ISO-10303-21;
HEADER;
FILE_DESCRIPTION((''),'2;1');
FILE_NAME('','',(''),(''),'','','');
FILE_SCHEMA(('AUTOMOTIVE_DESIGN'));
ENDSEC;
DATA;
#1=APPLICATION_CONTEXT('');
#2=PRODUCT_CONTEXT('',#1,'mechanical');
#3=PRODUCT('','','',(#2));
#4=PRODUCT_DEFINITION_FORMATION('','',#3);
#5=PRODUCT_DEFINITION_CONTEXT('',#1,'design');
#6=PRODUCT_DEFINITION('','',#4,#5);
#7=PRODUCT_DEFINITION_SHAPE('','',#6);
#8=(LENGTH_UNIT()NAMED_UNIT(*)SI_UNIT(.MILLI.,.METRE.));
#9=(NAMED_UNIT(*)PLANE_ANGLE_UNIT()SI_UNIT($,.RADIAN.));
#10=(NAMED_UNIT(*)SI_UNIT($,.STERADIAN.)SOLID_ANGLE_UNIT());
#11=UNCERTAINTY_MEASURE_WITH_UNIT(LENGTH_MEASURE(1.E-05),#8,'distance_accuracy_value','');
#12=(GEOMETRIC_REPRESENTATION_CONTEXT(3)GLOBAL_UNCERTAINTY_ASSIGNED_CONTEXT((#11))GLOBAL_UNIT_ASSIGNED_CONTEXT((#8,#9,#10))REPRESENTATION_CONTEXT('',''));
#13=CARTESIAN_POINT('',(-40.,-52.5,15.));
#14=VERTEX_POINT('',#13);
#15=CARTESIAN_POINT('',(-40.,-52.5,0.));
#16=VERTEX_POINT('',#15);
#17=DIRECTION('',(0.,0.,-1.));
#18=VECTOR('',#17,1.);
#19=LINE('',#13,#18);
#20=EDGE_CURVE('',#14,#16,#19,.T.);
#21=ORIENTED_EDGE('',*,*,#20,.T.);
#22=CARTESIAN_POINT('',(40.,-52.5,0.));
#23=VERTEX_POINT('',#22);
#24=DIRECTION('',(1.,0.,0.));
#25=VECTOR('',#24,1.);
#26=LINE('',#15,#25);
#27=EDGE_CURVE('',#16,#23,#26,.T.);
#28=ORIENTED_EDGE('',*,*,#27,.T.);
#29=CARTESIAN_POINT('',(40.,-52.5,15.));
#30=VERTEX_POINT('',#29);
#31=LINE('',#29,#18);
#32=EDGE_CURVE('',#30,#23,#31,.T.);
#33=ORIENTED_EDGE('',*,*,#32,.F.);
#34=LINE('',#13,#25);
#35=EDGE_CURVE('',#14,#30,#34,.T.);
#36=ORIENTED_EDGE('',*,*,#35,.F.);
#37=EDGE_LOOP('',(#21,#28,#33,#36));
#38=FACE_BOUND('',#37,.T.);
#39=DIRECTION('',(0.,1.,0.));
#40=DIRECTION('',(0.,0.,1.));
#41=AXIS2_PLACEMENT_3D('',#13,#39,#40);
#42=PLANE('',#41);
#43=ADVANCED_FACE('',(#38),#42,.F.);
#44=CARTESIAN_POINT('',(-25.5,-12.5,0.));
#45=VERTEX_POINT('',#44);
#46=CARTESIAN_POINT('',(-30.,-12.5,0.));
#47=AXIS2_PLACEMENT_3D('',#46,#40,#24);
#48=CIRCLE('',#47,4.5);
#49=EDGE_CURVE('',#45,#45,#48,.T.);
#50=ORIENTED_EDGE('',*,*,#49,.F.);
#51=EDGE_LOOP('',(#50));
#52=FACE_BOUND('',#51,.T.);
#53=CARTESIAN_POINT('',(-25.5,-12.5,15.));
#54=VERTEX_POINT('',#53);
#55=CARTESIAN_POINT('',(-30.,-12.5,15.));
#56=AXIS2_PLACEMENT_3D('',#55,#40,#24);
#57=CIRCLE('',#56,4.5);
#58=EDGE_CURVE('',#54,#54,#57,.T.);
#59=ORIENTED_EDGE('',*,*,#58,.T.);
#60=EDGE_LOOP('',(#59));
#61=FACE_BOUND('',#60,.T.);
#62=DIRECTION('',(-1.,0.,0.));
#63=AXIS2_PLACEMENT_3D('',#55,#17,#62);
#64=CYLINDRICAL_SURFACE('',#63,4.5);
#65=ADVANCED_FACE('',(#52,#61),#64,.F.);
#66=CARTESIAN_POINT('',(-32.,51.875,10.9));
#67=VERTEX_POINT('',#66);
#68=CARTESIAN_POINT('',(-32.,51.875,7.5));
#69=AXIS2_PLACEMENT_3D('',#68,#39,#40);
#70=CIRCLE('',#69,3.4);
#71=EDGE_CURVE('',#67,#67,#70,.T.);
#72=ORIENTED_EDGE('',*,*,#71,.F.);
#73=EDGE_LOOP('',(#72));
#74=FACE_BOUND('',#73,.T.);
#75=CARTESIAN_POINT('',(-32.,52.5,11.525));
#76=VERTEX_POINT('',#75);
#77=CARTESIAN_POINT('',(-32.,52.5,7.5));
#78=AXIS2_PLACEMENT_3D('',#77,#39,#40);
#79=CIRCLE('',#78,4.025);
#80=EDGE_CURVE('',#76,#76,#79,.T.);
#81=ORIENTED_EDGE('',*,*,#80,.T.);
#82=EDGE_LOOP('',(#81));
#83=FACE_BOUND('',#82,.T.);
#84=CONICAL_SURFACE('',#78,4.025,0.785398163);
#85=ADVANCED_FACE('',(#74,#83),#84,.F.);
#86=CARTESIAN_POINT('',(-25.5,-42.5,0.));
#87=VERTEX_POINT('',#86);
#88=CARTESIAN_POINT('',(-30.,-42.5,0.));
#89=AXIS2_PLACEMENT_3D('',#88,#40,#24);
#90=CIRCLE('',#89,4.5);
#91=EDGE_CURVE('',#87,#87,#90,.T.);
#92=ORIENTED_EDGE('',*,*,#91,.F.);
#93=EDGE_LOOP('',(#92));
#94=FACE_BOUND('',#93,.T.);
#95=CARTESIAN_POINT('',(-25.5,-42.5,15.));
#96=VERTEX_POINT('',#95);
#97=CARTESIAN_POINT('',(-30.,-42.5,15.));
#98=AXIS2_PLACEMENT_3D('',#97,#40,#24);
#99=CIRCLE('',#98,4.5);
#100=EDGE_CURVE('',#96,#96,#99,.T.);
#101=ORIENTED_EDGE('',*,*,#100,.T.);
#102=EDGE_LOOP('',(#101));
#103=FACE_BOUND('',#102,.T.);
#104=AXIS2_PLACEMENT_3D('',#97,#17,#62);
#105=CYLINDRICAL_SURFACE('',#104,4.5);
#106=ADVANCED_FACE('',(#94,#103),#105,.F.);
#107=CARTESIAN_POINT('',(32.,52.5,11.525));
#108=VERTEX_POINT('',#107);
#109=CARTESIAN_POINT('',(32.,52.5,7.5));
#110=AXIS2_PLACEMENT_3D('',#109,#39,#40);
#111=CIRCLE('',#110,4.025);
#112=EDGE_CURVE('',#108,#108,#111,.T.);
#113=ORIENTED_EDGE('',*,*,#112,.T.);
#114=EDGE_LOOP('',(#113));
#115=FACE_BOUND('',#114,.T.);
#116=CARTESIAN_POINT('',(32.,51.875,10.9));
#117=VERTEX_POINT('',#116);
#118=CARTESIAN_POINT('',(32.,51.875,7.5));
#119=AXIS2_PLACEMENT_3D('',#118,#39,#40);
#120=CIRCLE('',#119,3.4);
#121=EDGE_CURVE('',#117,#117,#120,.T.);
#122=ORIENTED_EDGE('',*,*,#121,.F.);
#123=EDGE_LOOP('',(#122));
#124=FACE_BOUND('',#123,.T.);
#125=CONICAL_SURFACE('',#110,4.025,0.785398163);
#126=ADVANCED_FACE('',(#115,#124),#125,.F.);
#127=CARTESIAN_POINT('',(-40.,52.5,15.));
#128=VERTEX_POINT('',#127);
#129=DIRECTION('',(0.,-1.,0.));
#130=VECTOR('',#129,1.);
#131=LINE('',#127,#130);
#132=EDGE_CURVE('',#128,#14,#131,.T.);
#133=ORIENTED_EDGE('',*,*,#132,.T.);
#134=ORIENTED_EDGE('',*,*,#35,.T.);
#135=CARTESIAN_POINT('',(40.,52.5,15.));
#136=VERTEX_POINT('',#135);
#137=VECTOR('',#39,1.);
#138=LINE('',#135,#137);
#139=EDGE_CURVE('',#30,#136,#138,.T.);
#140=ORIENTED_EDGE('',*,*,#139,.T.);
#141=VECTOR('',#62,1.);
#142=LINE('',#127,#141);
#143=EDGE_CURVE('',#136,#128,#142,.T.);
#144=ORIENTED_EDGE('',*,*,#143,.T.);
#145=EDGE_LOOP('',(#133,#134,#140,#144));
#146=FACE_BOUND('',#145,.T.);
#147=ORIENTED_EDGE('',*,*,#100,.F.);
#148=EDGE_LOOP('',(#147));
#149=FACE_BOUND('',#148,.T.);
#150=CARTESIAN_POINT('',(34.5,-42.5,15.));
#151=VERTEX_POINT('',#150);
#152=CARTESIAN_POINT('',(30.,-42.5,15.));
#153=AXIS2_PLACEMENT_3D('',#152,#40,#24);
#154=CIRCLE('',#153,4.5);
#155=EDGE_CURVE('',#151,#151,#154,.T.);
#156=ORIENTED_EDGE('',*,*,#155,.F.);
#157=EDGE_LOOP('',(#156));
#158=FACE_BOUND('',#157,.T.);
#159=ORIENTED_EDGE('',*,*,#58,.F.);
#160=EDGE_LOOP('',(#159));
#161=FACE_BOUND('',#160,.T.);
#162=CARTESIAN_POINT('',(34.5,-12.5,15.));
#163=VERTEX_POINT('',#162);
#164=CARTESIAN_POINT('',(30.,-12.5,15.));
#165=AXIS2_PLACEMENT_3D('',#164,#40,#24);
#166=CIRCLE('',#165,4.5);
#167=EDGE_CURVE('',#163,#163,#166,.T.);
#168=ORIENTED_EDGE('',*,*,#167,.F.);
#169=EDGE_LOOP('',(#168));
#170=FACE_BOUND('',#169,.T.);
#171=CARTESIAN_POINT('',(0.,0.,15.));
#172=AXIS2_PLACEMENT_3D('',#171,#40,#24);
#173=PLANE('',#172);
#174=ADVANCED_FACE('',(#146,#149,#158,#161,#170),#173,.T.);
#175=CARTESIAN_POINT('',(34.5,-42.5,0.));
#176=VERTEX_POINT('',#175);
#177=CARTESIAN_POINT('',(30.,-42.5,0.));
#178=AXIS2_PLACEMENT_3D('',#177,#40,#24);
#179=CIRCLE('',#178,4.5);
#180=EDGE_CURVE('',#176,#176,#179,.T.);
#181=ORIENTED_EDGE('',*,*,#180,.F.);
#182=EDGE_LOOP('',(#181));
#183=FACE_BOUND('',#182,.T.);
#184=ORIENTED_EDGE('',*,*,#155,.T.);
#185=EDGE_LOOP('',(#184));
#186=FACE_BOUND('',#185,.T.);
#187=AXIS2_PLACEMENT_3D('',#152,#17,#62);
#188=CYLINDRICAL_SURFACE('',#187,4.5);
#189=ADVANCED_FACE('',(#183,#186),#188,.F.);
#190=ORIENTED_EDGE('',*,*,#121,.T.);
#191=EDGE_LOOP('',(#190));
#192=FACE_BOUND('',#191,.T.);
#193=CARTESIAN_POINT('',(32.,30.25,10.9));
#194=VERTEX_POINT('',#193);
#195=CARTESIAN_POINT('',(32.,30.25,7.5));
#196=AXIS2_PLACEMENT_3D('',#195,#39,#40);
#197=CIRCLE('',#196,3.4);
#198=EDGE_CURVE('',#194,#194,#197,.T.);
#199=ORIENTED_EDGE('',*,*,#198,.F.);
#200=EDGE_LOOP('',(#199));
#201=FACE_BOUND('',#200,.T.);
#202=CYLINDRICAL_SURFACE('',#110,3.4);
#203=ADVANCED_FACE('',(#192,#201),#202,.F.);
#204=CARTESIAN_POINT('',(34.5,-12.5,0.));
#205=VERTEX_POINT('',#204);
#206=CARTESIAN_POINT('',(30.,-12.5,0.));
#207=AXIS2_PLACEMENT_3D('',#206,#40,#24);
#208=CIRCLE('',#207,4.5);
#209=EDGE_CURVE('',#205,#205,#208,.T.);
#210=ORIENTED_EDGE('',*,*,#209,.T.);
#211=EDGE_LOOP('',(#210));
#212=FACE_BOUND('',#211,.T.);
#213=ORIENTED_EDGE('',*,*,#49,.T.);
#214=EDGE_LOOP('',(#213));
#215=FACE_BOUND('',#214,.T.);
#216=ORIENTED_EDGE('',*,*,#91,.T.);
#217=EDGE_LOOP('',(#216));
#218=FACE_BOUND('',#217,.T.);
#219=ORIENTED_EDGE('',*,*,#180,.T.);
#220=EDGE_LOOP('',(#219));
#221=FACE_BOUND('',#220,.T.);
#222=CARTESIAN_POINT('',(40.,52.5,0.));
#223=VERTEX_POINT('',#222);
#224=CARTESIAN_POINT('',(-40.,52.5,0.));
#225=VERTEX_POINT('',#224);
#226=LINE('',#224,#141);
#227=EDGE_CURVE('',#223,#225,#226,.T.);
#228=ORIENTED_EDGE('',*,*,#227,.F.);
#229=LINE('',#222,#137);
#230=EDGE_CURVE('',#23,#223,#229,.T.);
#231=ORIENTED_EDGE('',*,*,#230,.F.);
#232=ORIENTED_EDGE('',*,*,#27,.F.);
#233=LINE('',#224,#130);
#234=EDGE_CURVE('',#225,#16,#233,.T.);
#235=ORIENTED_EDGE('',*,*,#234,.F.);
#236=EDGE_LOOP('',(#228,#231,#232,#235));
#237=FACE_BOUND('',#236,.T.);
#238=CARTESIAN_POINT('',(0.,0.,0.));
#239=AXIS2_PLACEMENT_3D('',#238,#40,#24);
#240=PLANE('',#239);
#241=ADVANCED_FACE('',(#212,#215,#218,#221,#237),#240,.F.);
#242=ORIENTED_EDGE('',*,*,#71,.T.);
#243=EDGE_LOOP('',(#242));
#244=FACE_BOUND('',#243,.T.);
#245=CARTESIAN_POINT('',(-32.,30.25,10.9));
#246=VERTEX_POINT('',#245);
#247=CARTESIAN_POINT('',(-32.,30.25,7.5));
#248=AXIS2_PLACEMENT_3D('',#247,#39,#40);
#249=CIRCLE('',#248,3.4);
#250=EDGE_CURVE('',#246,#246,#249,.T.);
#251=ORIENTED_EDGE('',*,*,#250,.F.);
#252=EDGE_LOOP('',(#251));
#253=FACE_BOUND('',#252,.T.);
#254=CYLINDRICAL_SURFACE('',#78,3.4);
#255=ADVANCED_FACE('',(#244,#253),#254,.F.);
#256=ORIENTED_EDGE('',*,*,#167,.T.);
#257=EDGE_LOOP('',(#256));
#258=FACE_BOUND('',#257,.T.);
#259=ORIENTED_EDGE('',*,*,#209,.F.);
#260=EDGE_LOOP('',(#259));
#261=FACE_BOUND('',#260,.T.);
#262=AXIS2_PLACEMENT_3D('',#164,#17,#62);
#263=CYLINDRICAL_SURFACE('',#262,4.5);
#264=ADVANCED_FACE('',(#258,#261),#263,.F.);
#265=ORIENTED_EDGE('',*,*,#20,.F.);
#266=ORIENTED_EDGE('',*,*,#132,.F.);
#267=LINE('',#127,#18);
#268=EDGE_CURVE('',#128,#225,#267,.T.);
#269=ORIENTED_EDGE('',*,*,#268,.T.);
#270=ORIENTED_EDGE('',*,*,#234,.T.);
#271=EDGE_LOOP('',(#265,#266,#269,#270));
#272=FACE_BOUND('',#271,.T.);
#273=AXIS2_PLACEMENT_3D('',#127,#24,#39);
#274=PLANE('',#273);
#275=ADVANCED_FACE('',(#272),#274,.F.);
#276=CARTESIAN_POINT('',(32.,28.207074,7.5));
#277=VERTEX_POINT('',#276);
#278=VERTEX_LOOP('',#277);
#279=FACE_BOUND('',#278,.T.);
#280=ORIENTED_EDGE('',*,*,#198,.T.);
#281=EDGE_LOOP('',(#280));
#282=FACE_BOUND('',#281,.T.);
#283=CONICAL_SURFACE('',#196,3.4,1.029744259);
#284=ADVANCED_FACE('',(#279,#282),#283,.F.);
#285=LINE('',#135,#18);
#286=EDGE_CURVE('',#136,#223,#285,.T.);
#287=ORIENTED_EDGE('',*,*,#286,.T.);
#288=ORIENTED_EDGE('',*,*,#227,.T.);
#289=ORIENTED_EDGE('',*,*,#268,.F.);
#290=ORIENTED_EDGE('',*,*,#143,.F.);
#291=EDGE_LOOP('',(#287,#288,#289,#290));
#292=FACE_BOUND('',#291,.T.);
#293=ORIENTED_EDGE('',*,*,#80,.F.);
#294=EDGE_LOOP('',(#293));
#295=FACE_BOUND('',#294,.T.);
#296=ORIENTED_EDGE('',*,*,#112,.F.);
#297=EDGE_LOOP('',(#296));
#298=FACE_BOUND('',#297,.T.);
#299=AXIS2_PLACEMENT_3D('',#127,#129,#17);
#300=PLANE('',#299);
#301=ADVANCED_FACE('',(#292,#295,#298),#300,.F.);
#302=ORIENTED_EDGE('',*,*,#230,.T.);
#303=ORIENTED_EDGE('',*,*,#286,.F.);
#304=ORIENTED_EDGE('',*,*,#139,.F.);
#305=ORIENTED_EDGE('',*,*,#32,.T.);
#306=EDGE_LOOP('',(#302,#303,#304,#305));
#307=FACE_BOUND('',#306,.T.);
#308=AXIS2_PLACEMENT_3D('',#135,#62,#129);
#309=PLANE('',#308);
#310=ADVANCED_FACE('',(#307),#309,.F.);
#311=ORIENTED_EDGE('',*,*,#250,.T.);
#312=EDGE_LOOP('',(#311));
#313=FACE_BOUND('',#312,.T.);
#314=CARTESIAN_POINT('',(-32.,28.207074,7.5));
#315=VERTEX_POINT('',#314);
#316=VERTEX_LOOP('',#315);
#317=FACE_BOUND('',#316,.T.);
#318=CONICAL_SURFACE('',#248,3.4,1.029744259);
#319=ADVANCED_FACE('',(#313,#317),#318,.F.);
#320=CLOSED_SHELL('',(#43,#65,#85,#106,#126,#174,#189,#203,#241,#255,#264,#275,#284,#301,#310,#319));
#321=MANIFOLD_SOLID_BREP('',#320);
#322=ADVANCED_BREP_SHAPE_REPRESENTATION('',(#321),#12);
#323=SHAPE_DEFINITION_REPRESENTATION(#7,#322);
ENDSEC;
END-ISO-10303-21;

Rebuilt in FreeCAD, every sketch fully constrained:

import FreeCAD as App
import Part
import Sketcher
from FreeCAD import Vector


def add_polygon(sketch, points):
    """Adds a closed chain of lines whose ends are joined by coincident constraints."""
    first, n = sketch.GeometryCount, len(points)
    for a, b in zip(points, points[1:] + points[:1]):
        sketch.addGeometry(Part.LineSegment(App.Vector(*a, 0), App.Vector(*b, 0)), False)
    for i in range(n):
        sketch.addConstraint(Sketcher.Constraint("Coincident", first + i, 2, first + (i + 1) % n, 1))

doc = App.newDocument("Part")
body = doc.addObject("PartDesign::Body", "Body")

sketch1 = body.newObject("Sketcher::SketchObject", "Sketch")
sketch1.AttachmentSupport = (doc.getObject("XY_Plane"), [""])
sketch1.MapMode = "FlatFace"
add_polygon(sketch1, [(-40, 52.5), (-40, -52.5), (40, -52.5), (40, 52.5)])
sketch1.addGeometry(Part.Circle(Vector(-30, -42.5, 0), Vector(0, 0, 1), 4.5), False)
sketch1.addGeometry(Part.Circle(Vector(30, -42.5, 0), Vector(0, 0, 1), 4.5), False)
sketch1.addGeometry(Part.Circle(Vector(-30, -12.5, 0), Vector(0, 0, 1), 4.5), False)
sketch1.addGeometry(Part.Circle(Vector(30, -12.5, 0), Vector(0, 0, 1), 4.5), False)
sketch1.addConstraint(Sketcher.Constraint("Vertical", 0))
sketch1.addConstraint(Sketcher.Constraint("Horizontal", 1))
sketch1.addConstraint(Sketcher.Constraint("Vertical", 2))
sketch1.addConstraint(Sketcher.Constraint("Horizontal", 3))
sketch1.addConstraint(Sketcher.Constraint("Equal", 4, 5))
sketch1.addConstraint(Sketcher.Constraint("Equal", 5, 6))
sketch1.addConstraint(Sketcher.Constraint("Equal", 6, 7))
sketch1.addConstraint(Sketcher.Constraint("Symmetric", 0, 2, 2, 2, -1, 1))
sketch1.addConstraint(Sketcher.Constraint("Symmetric", 4, 3, 5, 3, -2))
sketch1.addConstraint(Sketcher.Constraint("Symmetric", 6, 3, 7, 3, -2))
sketch1.addConstraint(Sketcher.Constraint("Vertical", 4, 3, 6, 3))
sketch1.addConstraint(Sketcher.Constraint("Diameter", 4, 9.0))
sketch1.addConstraint(Sketcher.Constraint("DistanceX", 1, 1, 1, 2, 80.0))
sketch1.addConstraint(Sketcher.Constraint("DistanceY", 0, 2, 0, 1, 105.0))
sketch1.addConstraint(Sketcher.Constraint("DistanceX", 4, 3, -1, 1, 30.0))
sketch1.addConstraint(Sketcher.Constraint("DistanceY", 4, 3, 6, 3, 30.0))
sketch1.addConstraint(Sketcher.Constraint("DistanceY", 0, 2, 4, 3, 10.0))
pad1 = body.newObject("PartDesign::Pad", "Pad")
pad1.Profile = sketch1
pad1.Length = 15

sketch2 = body.newObject("Sketcher::SketchObject", "Sketch001")
sketch2.AttachmentSupport = (doc.getObject("XZ_Plane"), [""])
sketch2.MapMode = "FlatFace"
sketch2.AttachmentOffset = App.Placement(Vector(0, 0, -52.5), App.Rotation())
sketch2.addGeometry(Part.Circle(Vector(-32, 7.5, 0), Vector(0, 0, 1), 3.4), False)
sketch2.addGeometry(Part.Circle(Vector(32, 7.5, 0), Vector(0, 0, 1), 3.4), False)
sketch2.addConstraint(Sketcher.Constraint("Equal", 0, 1))
sketch2.addConstraint(Sketcher.Constraint("Symmetric", 0, 3, 1, 3, -2))
sketch2.addConstraint(Sketcher.Constraint("Diameter", 0, 6.8))
sketch2.addConstraint(Sketcher.Constraint("DistanceX", 0, 3, -1, 1, 32.0))
sketch2.addConstraint(Sketcher.Constraint("DistanceY", -1, 1, 0, 3, 7.5))
doc.recompute()
hole = body.newObject("PartDesign::Hole", "Hole")
hole.Profile = sketch2
hole.ThreadType = "None"
hole.Diameter = 6.8
hole.DepthType = "Dimension"
hole.Depth = 22.25
hole.DrillPoint = "Angled"
hole.DrillPointAngle = 118
hole.HoleCutType = "Countersink"
hole.HoleCutDiameter = 8.05
hole.HoleCutCountersinkAngle = 90
hole.Reversed = True

doc.recompute()
